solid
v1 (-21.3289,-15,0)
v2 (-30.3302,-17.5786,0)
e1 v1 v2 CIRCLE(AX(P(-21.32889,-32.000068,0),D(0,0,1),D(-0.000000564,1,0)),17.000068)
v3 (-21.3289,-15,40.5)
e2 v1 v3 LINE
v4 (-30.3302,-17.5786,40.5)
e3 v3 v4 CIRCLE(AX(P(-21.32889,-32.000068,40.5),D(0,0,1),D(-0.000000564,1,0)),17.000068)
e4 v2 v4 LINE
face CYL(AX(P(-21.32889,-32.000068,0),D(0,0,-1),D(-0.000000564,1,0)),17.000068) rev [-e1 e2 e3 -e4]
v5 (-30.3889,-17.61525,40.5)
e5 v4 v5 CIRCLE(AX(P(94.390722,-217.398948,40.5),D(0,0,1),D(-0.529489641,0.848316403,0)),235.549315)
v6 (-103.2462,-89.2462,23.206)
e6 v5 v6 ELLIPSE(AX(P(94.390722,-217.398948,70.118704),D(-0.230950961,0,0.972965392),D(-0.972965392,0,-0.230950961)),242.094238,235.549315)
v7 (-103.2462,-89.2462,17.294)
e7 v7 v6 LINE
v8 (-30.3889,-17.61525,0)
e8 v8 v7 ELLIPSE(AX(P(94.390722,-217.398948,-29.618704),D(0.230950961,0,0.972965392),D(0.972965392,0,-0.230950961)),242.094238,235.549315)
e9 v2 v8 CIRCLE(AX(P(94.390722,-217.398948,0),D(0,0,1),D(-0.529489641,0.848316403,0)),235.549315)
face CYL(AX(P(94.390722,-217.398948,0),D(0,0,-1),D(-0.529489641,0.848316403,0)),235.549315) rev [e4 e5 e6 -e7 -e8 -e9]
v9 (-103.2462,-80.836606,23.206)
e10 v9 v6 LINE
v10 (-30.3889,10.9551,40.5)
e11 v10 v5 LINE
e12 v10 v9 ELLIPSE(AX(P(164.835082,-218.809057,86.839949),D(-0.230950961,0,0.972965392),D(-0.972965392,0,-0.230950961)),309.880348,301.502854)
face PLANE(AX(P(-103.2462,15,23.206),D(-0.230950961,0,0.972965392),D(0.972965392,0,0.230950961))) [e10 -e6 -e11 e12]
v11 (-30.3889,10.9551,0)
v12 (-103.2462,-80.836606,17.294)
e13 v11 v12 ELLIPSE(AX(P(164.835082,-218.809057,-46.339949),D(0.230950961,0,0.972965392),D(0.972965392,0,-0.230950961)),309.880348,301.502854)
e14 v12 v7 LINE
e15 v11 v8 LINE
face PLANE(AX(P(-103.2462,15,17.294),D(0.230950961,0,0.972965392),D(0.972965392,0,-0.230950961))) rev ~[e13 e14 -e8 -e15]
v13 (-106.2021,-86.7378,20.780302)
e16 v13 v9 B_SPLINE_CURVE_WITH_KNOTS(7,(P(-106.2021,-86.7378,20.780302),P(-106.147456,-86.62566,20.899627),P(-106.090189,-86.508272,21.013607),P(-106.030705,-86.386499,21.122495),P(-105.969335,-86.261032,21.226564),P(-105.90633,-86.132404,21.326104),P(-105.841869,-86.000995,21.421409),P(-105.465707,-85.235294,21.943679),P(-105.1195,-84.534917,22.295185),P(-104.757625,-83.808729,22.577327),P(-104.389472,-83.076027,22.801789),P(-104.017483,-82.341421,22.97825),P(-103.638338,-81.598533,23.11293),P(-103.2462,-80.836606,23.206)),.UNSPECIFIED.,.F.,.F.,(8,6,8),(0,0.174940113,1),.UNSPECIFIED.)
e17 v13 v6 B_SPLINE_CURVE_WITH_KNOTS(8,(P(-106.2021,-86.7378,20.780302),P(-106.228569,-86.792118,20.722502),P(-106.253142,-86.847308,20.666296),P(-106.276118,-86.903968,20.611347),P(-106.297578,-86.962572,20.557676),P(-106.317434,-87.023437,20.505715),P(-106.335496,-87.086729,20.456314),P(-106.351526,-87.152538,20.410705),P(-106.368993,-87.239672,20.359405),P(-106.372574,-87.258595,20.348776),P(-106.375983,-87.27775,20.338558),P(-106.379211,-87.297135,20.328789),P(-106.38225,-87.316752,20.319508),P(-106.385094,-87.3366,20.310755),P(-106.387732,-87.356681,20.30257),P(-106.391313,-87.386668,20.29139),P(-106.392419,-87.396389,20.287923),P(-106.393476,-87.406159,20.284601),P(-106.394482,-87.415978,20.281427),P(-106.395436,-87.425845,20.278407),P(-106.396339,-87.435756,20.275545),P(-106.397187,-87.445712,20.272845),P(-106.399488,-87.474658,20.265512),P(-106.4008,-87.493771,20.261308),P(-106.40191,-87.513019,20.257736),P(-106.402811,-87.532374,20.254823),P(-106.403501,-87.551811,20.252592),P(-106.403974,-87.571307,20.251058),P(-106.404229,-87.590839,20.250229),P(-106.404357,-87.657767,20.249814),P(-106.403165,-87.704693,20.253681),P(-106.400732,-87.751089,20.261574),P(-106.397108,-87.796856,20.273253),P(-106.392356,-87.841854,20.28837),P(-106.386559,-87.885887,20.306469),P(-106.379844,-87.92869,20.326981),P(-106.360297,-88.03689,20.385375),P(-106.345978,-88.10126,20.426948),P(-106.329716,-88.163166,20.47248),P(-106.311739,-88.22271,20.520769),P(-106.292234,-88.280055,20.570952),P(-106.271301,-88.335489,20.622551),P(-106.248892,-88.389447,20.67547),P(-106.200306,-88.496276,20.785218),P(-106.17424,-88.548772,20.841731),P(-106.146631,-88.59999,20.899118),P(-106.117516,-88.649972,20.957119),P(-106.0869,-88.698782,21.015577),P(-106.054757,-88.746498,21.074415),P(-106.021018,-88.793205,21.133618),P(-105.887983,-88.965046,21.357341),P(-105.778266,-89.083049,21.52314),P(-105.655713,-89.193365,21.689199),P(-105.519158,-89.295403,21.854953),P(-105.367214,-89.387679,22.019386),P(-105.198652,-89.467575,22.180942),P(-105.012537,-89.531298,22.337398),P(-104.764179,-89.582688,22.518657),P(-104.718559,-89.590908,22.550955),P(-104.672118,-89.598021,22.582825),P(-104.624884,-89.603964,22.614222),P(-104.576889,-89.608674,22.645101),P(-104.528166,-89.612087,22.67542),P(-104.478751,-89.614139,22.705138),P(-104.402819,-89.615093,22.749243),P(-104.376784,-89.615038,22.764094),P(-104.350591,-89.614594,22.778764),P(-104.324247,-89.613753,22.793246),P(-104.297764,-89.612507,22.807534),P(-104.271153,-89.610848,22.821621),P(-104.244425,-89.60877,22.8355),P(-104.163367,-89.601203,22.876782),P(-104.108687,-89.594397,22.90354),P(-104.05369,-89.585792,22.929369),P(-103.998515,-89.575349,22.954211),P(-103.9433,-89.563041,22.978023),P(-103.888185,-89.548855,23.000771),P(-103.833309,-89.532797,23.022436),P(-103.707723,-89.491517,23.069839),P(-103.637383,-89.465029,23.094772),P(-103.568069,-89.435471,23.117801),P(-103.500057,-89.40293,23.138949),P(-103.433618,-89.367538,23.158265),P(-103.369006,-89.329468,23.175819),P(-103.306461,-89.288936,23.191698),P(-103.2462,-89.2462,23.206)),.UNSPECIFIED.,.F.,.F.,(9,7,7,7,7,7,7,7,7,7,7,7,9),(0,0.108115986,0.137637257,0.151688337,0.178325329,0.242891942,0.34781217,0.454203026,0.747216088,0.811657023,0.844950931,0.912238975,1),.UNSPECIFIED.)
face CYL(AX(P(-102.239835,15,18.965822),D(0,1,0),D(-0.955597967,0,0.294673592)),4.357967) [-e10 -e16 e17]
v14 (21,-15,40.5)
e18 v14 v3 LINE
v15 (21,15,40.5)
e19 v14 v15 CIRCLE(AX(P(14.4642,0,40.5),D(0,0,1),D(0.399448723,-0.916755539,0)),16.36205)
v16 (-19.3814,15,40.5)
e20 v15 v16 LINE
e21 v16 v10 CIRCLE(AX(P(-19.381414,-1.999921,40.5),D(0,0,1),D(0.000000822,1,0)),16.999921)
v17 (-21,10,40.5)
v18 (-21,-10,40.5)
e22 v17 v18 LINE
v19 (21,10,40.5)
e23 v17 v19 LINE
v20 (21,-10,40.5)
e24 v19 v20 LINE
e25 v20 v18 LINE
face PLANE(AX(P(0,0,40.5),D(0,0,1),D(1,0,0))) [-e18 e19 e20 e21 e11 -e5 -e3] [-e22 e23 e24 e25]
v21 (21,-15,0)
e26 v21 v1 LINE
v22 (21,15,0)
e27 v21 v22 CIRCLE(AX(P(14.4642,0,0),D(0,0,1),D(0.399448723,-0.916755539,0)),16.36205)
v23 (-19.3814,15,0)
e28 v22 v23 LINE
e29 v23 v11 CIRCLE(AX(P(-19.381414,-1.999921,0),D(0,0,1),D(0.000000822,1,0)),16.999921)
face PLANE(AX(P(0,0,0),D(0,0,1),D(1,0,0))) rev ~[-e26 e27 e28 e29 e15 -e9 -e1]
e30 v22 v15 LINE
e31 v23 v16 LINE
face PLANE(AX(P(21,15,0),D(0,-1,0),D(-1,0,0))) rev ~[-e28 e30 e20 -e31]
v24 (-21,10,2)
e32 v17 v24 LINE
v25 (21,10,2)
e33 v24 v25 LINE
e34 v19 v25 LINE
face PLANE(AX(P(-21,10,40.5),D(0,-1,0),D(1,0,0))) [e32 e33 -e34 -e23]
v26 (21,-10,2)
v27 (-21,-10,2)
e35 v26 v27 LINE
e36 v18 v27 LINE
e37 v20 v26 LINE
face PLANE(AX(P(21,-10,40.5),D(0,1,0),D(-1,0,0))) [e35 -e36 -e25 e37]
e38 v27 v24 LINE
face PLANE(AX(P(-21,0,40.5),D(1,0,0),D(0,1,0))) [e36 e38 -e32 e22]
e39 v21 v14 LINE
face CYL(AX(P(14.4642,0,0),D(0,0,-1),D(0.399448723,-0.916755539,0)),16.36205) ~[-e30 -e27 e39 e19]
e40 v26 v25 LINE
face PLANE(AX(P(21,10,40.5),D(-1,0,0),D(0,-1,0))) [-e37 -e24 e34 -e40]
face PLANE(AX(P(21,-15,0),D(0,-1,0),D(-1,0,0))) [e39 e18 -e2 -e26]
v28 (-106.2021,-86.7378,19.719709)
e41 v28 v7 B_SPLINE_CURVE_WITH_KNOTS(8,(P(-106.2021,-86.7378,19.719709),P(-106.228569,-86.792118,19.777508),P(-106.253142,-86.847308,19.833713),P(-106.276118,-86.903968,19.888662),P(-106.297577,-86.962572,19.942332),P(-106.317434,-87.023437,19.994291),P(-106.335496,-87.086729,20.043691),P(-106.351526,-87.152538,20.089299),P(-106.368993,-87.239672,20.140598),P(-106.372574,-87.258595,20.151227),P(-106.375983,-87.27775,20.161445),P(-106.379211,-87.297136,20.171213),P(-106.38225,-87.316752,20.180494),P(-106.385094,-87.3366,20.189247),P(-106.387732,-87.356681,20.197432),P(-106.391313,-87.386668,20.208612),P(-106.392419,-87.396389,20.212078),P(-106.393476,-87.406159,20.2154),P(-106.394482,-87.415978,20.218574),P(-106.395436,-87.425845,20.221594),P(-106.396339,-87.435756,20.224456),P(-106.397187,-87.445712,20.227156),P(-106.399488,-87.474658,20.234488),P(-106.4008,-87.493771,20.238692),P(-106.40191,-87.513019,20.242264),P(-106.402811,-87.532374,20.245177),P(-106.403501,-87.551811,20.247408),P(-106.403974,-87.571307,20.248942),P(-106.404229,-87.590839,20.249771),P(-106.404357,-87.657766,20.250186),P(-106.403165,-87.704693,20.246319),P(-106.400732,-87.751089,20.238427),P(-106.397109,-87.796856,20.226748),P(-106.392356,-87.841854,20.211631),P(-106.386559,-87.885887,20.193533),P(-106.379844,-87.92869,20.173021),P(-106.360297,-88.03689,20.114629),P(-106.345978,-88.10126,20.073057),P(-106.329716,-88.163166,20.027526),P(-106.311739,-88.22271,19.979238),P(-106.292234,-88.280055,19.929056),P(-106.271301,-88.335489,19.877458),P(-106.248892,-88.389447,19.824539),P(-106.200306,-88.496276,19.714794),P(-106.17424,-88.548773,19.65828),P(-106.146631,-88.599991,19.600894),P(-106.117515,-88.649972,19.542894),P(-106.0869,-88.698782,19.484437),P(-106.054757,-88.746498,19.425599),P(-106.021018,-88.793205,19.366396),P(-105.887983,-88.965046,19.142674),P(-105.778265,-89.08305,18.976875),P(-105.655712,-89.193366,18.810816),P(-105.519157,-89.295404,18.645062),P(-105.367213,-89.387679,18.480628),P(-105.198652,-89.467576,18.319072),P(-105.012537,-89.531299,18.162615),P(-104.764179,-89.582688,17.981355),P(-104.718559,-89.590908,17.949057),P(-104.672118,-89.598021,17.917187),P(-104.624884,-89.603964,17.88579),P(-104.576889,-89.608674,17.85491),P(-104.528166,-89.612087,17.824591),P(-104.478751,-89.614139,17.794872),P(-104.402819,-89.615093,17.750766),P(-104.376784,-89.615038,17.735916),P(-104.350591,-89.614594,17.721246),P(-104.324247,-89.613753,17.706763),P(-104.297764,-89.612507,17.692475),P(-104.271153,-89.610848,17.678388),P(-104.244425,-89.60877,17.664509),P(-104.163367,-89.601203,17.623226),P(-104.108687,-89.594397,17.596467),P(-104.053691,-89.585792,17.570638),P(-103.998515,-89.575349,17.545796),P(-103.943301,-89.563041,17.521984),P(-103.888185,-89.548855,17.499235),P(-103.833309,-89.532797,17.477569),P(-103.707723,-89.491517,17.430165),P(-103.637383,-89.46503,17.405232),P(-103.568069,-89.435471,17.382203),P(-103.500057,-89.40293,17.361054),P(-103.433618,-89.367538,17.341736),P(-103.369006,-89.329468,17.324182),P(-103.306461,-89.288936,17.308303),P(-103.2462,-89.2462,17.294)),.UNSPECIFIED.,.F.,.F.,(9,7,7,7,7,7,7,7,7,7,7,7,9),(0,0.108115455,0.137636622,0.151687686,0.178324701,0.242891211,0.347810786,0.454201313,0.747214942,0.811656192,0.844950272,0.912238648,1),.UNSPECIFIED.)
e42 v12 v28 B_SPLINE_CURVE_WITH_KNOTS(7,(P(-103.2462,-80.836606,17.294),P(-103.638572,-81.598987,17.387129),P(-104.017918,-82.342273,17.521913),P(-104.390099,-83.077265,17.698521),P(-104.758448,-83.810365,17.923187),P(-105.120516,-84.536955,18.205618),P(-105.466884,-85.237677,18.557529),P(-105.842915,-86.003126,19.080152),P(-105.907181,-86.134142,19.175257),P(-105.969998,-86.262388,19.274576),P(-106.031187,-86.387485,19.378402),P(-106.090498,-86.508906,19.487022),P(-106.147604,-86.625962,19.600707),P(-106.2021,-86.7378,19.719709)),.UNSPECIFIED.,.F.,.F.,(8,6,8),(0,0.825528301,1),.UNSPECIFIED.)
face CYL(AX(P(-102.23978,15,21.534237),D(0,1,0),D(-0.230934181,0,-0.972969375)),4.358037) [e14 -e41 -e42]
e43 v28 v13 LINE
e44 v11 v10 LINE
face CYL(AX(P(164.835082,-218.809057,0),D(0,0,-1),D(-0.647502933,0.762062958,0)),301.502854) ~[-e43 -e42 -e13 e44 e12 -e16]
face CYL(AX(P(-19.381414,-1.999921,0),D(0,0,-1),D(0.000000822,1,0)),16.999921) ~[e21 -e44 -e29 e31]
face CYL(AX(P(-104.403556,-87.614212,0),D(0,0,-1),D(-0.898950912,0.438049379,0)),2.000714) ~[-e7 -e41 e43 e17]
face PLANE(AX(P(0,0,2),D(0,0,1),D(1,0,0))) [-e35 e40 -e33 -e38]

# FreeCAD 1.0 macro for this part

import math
import FreeCAD as App
import Part
import Sketcher
from FreeCAD import Vector


def add_polygon(sketch, points):
    """Adds a closed chain of lines whose ends are joined by coincident constraints."""
    first, n = sketch.GeometryCount, len(points)
    for a, b in zip(points, points[1:] + points[:1]):
        sketch.addGeometry(Part.LineSegment(App.Vector(*a, 0), App.Vector(*b, 0)), False)
    for i in range(n):
        sketch.addConstraint(Sketcher.Constraint("Coincident", first + i, 2, first + (i + 1) % n, 1))

doc = App.newDocument("Part")
params = doc.addObject("Spreadsheet::Sheet", "Params")
for row, (alias, value) in enumerate([
    ("sketch1_radius", "17 mm"),
    ("sketch1_radius2", "17 mm"),
    ("pad1_length", "40.5 mm"),
    ("sketch2_height", "20.25 mm"),
    ("sketch3_width", "42 mm"),
    ("sketch3_height", "20 mm"),
    ("pocket2_length", "38.5 mm"),
], start=1):
    params.set(f"A{row}", alias)
    params.set(f"B{row}", "=" + value)
    params.setAlias(f"B{row}", alias)

body = doc.addObject("PartDesign::Body", "Body")

sketch1 = body.newObject("Sketcher::SketchObject", "Sketch")
sketch1.AttachmentSupport = (doc.getObject("XY_Plane"), [""])
sketch1.MapMode = "FlatFace"
sketch1.addGeometry(Part.ArcOfCircle(Part.Circle(Vector(14.4642, 0, 0), Vector(0, 0, 1), 16.36205), math.radians(-66.45628), math.radians(66.45628)), False)
sketch1.addGeometry(Part.LineSegment(Vector(21, 15, 0), Vector(-19.3814, 15, 0)), False)
sketch1.addGeometry(Part.ArcOfCircle(Part.Circle(Vector(-19.3814, -2, 0), Vector(0, 0, 1), 17), math.radians(90), math.radians(130.353404)), False)
sketch1.addGeometry(Part.ArcOfCircle(Part.Circle(Vector(164.8345, -218.8085, 0), Vector(0, 0, 1), 301.502053), math.radians(130.353581), math.radians(154.020954)), False)
sketch1.addGeometry(Part.ArcOfCircle(Part.Circle(Vector(-104.4035, -87.6142, 0), Vector(0, 0, 1), 2.00076), math.radians(154.021513), math.radians(305.341594)), False)
sketch1.addGeometry(Part.ArcOfCircle(Part.Circle(Vector(94.391, -217.3993, 0), Vector(0, 0, 1), 235.549761), math.radians(121.97099), math.radians(147.039576)), False)
sketch1.addGeometry(Part.ArcOfCircle(Part.Circle(Vector(-21.3289, -32, 0), Vector(0, 0, 1), 17), math.radians(90), math.radians(121.970872)), False)
sketch1.addGeometry(Part.LineSegment(Vector(-21.3289, -15, 0), Vector(21, -15, 0)), False)
sketch1.addConstraint(Sketcher.Constraint("Coincident", 0, 2, 1, 1))
sketch1.addConstraint(Sketcher.Constraint("Coincident", 1, 2, 2, 1))
sketch1.addConstraint(Sketcher.Constraint("Coincident", 2, 2, 3, 1))
sketch1.addConstraint(Sketcher.Constraint("Coincident", 3, 2, 4, 1))
sketch1.addConstraint(Sketcher.Constraint("Coincident", 4, 2, 5, 2))
sketch1.addConstraint(Sketcher.Constraint("Coincident", 5, 1, 6, 2))
sketch1.addConstraint(Sketcher.Constraint("Coincident", 6, 1, 7, 1))
sketch1.addConstraint(Sketcher.Constraint("Coincident", 7, 2, 0, 1))
sketch1.addConstraint(Sketcher.Constraint("Horizontal", 1))
sketch1.addConstraint(Sketcher.Constraint("Horizontal", 7))
sketch1.addConstraint(Sketcher.Constraint("PointOnObject", 0, 3, -1))
sketch1.addConstraint(Sketcher.Constraint("Radius", 2, 17.0))
sketch1.addConstraint(Sketcher.Constraint("Radius", 6, 17.0))
sketch1.addConstraint(Sketcher.Constraint("DistanceX", -1, 1, 0, 2, 21.0))
sketch1.addConstraint(Sketcher.Constraint("DistanceX", -1, 1, 7, 2, 21.0))
sketch1.addConstraint(Sketcher.Constraint("Radius", 3, 301.502))
sketch1.addConstraint(Sketcher.Constraint("Radius", 5, 235.5498))
sketch1.addConstraint(Sketcher.Constraint("DistanceY", 2, 3, -1, 1, 2.0))
sketch1.addConstraint(Sketcher.Constraint("Radius", 0, 16.362))
sketch1.addConstraint(Sketcher.Constraint("Radius", 4, 2.0008))
sketch1.addConstraint(Sketcher.Constraint("DistanceX", 7, 1, 7, 2, 42.329))
sketch1.addConstraint(Sketcher.Constraint("DistanceX", 6, 3, 5, 3, 115.72))
sketch1.addConstraint(Sketcher.Constraint("DistanceX", 2, 2, 6, 3, 9.06))
sketch1.addConstraint(Sketcher.Constraint("DistanceX", 2, 2, 6, 1, 9.06))
sketch1.addConstraint(Sketcher.Constraint("DistanceX", 1, 2, 1, 1, 40.3814))
sketch1.addConstraint(Sketcher.Constraint("DistanceY", -1, 1, 2, 2, 10.955))
sketch1.addConstraint(Sketcher.Constraint("DistanceX", 3, 2, -1, 1, 106.202))
sketch1.addConstraint(Sketcher.Constraint("DistanceX", 2, 3, 3, 3, 184.216))
sketch1.addConstraint(Sketcher.Constraint("DistanceX", 4, 3, 2, 3, 85.022))
sketch1.addConstraint(Sketcher.Constraint("DistanceX", 5, 1, -1, 1, 30.3302))
sketch1.setExpression("Constraints[11]", "Params.sketch1_radius")
sketch1.setExpression("Constraints[12]", "Params.sketch1_radius2")
pad1 = body.newObject("PartDesign::Pad", "Pad")
pad1.Profile = sketch1
pad1.setExpression("Length", "Params.pad1_length")

sketch2 = body.newObject("Sketcher::SketchObject", "Sketch001")
sketch2.AttachmentSupport = (doc.getObject("XZ_Plane"), [""])
sketch2.MapMode = "FlatFace"
sketch2.AttachmentOffset = App.Placement(Vector(0, 0, -15), App.Rotation())
sketch2.addGeometry(Part.LineSegment(Vector(-103.2, 17.3, 0), Vector(-30.4, 0, 0)), False)
sketch2.addGeometry(Part.LineSegment(Vector(-30.4, 0, 0), Vector(-106.4, 0, 0)), False)
sketch2.addGeometry(Part.LineSegment(Vector(-106.4, 0, 0), Vector(-106.4, 20.2, 0)), False)
sketch2.addGeometry(Part.ArcOfCircle(Part.Circle(Vector(-102.2, 21.5, 0), Vector(0, 0, 1), 4.4), math.radians(-163), math.radians(-103)), False)
sketch2.addGeometry(Part.LineSegment(Vector(-30.4, 40.5, 0), Vector(-103.2, 23.2, 0)), False)
sketch2.addGeometry(Part.ArcOfCircle(Part.Circle(Vector(-102.2, 19, 0), Vector(0, 0, 1), 4.4), math.radians(103), math.radians(163)), False)
sketch2.addGeometry(Part.LineSegment(Vector(-106.4, 20.2, 0), Vector(-106.4, 40.5, 0)), False)
sketch2.addGeometry(Part.LineSegment(Vector(-106.4, 40.5, 0), Vector(-30.4, 40.5, 0)), False)
sketch2.addConstraint(Sketcher.Constraint("Coincident", 0, 2, 1, 1))
sketch2.addConstraint(Sketcher.Constraint("Coincident", 1, 2, 2, 1))
sketch2.addConstraint(Sketcher.Constraint("Coincident", 2, 2, 3, 1))
sketch2.addConstraint(Sketcher.Constraint("Tangent", 3, 2, 0, 1))
sketch2.addConstraint(Sketcher.Constraint("Tangent", 4, 2, 5, 1))
sketch2.addConstraint(Sketcher.Constraint("Coincident", 5, 2, 6, 1))
sketch2.addConstraint(Sketcher.Constraint("Coincident", 6, 2, 7, 1))
sketch2.addConstraint(Sketcher.Constraint("Coincident", 7, 2, 4, 1))
sketch2.addConstraint(Sketcher.Constraint("Horizontal", 1))
sketch2.addConstraint(Sketcher.Constraint("Vertical", 2))
sketch2.addConstraint(Sketcher.Constraint("Vertical", 6))
sketch2.addConstraint(Sketcher.Constraint("Horizontal", 7))
sketch2.addConstraint(Sketcher.Constraint("Coincident", 5, 2, 2, 2))
sketch2.addConstraint(Sketcher.Constraint("Equal", 3, 5))
sketch2.addConstraint(Sketcher.Constraint("PointOnObject", 0, 2, -1))
sketch2.addConstraint(Sketcher.Constraint("Vertical", 3, 3, 5, 3))
sketch2.addConstraint(Sketcher.Constraint("Vertical", 3, 2, 4, 2))
sketch2.addConstraint(Sketcher.Constraint("Vertical", 0, 2, 7, 2))
sketch2.addConstraint(Sketcher.Constraint("Radius", 3, 4.358))
sketch2.addConstraint(Sketcher.Constraint("DistanceY", 3, 2, 2, 2, 2.956))
sketch2.addConstraint(Sketcher.Constraint("DistanceY", 2, 1, 2, 2, 20.25))
sketch2.addConstraint(Sketcher.Constraint("DistanceX", 1, 2, 1, 1, 76.0154))
sketch2.addConstraint(Sketcher.Constraint("DistanceX", 0, 2, -1, 1, 30.389))
sketch2.setExpression("Constraints[20]", "Params.sketch2_height")
pocket1 = body.newObject("PartDesign::Pocket", "Pocket")
pocket1.Profile = sketch2
pocket1.Type = "ThroughAll"
pocket1.Reversed = True

sketch3 = body.newObject("Sketcher::SketchObject", "Sketch002")
sketch3.AttachmentSupport = (doc.getObject("XY_Plane"), [""])
sketch3.MapMode = "FlatFace"
sketch3.AttachmentOffset = App.Placement(Vector(0, 0, 40.5), App.Rotation())
add_polygon(sketch3, [(21, 10), (-21, 10), (-21, -10), (21, -10)])
sketch3.addConstraint(Sketcher.Constraint("Horizontal", 0))
sketch3.addConstraint(Sketcher.Constraint("Vertical", 1))
sketch3.addConstraint(Sketcher.Constraint("Horizontal", 2))
sketch3.addConstraint(Sketcher.Constraint("Vertical", 3))
sketch3.addConstraint(Sketcher.Constraint("Symmetric", 0, 2, 2, 2, -1, 1))
sketch3.addConstraint(Sketcher.Constraint("DistanceX", 0, 2, 0, 1, 42.0))
sketch3.addConstraint(Sketcher.Constraint("DistanceY", 1, 2, 1, 1, 20.0))
sketch3.setExpression("Constraints[9]", "Params.sketch3_width")
sketch3.setExpression("Constraints[10]", "Params.sketch3_height")
pocket2 = body.newObject("PartDesign::Pocket", "Pocket001")
pocket2.Profile = sketch3
pocket2.setExpression("Length", "Params.pocket2_length")

doc.recompute()
